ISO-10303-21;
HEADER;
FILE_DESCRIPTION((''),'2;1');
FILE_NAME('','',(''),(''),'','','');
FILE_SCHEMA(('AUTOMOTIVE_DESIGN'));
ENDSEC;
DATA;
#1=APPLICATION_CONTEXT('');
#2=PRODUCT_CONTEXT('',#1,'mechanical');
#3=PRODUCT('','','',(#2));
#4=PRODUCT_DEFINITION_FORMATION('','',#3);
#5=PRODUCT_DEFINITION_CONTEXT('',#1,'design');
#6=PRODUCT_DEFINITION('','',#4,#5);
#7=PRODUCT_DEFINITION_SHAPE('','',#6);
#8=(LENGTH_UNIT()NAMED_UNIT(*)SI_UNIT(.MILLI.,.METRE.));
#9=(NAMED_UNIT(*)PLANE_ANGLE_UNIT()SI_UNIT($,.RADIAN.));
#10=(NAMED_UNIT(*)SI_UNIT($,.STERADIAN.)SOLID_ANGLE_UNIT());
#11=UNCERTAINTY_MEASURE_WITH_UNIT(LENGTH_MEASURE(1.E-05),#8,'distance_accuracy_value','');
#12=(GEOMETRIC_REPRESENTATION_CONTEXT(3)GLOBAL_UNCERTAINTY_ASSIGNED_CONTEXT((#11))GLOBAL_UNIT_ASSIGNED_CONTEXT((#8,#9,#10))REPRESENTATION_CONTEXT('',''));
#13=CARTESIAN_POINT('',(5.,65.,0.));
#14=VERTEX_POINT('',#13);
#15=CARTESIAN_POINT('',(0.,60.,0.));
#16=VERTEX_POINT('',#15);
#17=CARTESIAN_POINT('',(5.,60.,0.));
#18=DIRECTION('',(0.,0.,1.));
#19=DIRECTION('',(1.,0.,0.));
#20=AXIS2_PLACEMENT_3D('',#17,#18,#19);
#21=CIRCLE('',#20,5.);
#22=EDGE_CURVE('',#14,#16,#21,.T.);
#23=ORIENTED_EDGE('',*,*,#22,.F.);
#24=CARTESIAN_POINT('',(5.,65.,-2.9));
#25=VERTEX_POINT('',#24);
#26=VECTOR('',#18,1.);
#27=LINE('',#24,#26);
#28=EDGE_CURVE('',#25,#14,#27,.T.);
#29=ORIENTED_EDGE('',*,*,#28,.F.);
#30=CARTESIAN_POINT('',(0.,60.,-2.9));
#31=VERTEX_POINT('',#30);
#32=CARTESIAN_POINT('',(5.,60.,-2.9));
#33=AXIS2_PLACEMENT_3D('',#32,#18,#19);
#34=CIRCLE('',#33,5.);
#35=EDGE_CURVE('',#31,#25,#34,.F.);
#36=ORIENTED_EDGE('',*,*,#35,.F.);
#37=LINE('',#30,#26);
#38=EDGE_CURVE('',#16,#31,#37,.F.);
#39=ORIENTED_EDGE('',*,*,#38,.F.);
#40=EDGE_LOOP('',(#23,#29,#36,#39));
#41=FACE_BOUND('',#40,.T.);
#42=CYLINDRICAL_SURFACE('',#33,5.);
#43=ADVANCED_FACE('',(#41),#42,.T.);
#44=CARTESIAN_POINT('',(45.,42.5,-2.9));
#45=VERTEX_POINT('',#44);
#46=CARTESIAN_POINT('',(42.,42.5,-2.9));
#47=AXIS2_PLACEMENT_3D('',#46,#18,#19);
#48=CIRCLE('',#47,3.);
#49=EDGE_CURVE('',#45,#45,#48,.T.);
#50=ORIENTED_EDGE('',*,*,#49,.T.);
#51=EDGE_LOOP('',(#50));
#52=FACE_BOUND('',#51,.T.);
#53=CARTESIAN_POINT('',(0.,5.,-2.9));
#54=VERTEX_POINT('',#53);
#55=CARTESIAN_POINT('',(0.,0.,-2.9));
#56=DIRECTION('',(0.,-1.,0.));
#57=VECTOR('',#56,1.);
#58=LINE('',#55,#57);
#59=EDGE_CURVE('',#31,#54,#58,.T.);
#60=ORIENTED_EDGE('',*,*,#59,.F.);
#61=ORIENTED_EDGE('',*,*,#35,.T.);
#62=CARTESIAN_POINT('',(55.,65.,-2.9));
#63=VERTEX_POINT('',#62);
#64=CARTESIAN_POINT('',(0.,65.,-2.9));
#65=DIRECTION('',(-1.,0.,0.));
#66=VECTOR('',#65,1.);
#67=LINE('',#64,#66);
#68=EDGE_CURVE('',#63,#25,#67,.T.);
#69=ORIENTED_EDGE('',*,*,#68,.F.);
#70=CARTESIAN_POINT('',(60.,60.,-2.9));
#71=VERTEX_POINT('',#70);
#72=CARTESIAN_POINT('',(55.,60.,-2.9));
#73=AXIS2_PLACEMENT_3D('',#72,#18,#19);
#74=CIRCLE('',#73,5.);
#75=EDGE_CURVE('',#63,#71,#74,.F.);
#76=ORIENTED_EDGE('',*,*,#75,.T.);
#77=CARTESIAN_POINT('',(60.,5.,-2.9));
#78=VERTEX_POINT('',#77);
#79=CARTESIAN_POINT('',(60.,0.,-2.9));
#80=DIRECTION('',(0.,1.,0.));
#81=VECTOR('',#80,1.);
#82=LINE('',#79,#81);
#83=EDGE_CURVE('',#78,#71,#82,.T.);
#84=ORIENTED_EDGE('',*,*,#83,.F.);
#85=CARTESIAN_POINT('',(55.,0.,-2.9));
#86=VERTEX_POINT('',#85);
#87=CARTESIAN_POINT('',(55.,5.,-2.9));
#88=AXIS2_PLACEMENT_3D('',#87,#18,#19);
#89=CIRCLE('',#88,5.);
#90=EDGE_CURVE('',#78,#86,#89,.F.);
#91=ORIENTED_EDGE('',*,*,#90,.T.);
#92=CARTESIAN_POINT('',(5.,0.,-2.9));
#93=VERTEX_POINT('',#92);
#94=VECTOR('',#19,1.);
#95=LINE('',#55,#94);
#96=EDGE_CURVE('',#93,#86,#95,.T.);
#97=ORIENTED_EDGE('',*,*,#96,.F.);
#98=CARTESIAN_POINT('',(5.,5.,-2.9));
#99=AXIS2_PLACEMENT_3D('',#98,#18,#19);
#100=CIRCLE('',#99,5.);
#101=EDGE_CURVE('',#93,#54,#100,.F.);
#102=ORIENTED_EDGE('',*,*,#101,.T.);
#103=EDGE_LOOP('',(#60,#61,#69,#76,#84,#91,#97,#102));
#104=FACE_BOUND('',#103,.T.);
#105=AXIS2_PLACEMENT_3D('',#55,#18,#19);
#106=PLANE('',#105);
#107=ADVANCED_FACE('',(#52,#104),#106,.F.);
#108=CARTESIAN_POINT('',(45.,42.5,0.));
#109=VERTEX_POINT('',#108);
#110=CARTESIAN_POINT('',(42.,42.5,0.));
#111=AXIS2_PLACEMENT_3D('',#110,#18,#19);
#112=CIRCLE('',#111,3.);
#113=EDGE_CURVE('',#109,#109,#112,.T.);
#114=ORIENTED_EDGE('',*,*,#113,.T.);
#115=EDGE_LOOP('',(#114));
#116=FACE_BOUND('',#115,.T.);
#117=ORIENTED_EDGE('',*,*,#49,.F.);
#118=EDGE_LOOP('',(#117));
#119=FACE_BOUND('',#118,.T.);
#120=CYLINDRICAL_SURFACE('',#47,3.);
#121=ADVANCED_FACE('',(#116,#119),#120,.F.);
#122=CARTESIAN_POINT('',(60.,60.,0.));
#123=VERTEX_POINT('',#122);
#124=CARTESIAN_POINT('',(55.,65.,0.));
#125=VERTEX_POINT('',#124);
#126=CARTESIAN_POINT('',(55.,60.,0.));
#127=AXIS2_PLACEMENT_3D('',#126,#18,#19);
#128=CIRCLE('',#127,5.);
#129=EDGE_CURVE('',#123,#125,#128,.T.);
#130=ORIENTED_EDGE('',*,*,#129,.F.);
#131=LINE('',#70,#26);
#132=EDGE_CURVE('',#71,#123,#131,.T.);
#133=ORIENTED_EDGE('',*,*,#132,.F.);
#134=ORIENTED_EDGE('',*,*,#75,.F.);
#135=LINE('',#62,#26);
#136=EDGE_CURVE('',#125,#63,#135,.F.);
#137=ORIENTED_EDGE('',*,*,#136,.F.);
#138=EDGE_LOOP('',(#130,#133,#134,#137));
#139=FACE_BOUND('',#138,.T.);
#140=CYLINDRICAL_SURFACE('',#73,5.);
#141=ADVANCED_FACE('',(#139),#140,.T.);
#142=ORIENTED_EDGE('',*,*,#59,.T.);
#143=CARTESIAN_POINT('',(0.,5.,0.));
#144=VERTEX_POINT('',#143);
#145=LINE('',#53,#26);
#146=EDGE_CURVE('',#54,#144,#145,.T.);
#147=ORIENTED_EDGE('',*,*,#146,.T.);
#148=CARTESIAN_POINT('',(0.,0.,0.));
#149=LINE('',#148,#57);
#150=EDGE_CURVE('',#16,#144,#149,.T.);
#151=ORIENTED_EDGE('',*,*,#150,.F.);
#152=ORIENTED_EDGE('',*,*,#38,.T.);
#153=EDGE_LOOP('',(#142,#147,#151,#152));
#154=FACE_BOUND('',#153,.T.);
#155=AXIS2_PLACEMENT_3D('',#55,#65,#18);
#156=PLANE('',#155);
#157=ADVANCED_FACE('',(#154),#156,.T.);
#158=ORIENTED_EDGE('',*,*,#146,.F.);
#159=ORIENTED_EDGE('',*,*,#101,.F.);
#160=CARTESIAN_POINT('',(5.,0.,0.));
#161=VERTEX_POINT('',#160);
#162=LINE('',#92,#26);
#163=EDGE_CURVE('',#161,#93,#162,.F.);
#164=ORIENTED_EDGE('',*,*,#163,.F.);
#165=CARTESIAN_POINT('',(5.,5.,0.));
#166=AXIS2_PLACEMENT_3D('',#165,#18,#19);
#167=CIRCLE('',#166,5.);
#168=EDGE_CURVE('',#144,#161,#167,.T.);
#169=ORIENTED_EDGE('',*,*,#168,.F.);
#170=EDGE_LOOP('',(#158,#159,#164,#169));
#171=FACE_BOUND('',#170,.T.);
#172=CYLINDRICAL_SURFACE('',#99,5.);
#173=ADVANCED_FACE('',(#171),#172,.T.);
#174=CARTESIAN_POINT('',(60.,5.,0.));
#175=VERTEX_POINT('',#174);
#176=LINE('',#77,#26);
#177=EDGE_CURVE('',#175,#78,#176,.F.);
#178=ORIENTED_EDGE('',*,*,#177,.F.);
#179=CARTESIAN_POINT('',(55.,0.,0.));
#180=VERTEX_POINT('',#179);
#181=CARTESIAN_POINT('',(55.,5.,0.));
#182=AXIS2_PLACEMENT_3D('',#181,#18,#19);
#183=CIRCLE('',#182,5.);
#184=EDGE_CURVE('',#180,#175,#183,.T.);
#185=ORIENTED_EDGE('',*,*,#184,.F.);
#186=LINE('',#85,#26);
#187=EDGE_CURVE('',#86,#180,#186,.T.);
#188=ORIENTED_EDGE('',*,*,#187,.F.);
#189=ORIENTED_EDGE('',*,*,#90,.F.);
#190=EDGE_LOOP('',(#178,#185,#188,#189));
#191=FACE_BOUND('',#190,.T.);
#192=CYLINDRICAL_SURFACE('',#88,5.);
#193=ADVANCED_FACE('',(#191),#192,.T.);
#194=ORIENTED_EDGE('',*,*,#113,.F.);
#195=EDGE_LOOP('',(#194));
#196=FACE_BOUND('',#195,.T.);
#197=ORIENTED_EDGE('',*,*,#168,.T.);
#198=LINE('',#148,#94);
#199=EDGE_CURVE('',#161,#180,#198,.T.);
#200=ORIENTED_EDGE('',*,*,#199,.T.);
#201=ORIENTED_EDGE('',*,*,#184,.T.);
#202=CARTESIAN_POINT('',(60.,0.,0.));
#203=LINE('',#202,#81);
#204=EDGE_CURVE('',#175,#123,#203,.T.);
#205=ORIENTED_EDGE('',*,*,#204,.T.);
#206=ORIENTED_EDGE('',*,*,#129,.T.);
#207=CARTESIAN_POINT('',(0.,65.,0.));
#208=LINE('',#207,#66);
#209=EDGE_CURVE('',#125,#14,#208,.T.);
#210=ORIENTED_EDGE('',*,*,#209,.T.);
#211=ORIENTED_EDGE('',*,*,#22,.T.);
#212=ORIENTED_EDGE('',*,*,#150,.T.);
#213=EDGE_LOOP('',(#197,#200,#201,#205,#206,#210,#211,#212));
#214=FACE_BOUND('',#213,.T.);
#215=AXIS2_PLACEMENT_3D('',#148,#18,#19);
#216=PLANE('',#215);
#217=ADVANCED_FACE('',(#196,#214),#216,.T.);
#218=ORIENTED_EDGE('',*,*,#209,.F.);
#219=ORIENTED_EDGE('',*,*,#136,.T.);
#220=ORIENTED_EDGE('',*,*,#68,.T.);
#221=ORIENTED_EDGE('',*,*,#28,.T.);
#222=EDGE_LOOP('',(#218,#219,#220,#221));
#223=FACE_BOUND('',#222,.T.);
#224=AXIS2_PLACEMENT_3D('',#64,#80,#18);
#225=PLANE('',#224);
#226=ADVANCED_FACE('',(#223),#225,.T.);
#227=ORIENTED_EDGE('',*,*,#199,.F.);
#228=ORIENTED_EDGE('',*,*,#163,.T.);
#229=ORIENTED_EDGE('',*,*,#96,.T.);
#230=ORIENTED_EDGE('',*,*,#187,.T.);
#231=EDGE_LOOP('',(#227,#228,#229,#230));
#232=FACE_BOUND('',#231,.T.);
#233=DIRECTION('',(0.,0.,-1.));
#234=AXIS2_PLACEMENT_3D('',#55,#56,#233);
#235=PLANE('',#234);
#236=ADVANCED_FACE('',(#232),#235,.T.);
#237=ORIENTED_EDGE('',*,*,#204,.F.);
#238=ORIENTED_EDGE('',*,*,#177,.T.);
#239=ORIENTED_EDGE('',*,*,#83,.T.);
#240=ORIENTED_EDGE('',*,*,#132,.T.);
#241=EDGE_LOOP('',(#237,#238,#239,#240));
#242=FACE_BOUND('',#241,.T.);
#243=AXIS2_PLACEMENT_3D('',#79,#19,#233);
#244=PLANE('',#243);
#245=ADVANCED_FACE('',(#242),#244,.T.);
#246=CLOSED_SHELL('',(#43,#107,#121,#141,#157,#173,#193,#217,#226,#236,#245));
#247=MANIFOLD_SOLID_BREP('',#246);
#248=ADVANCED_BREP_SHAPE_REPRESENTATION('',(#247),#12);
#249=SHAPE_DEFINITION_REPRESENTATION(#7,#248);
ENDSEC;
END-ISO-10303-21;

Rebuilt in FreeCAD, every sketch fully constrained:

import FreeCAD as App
import Part
import Sketcher

V = App.Vector
Q = App.Units.Quantity


def edges_at(feature, points):
    """Names of the edges that pass closest to the given points."""
    edges = feature.Shape.Edges
    near = lambda p: min(range(len(edges)), key=lambda i: edges[i].distToShape(Part.Vertex(*p))[0])
    return sorted({f"Edge{near(p) + 1}" for p in points})


def add_polygon(sketch, points):
    """Adds a closed chain of lines whose ends are joined by coincident constraints."""
    first, n = sketch.GeometryCount, len(points)
    for a, b in zip(points, points[1:] + points[:1]):
        sketch.addGeometry(Part.LineSegment(App.Vector(*a, 0), App.Vector(*b, 0)), False)
    for i in range(n):
        sketch.addConstraint(Sketcher.Constraint("Coincident", first + i, 2, first + (i + 1) % n, 1))

doc = App.newDocument("Part")
body = doc.addObject("PartDesign::Body", "Body")

sketch1 = body.newObject("Sketcher::SketchObject", "Sketch")
sketch1.AttachmentSupport = (doc.getObject("XY_Plane"), [""])
sketch1.MapMode = "FlatFace"
add_polygon(sketch1, [(0, 65), (0, 0), (60, 0), (60, 65)])
sketch1.addGeometry(Part.Circle(V(42, 42.5, 0), V(0, 0, 1), 3), False)
sketch1.addConstraint([
    Sketcher.Constraint("Vertical", 0),
    Sketcher.Constraint("Horizontal", 1),
    Sketcher.Constraint("Vertical", 2),
    Sketcher.Constraint("Horizontal", 3),
    Sketcher.Constraint("Coincident", 0, 2, -1, 1),
    Sketcher.Constraint("Diameter", 4, Q("6 mm")),
    Sketcher.Constraint("DistanceX", 1, 1, 1, 2, Q("60 mm")),
    Sketcher.Constraint("DistanceY", 0, 2, 0, 1, Q("65 mm")),
    Sketcher.Constraint("DistanceX", -1, 1, 4, 3, Q("42 mm")),
    Sketcher.Constraint("DistanceY", -1, 1, 4, 3, Q("42.5 mm")),
])
pad1 = body.newObject("PartDesign::Pad", "Pad")
pad1.Profile = sketch1
pad1.Length = 2.9
pad1.Reversed = True
doc.recompute()

fillet = body.newObject("PartDesign::Fillet", "Fillet")
fillet.Base = (pad1, edges_at(pad1, [(0, 65, -1.45)]))
fillet.Radius = 5
doc.recompute()

fillet2 = body.newObject("PartDesign::Fillet", "Fillet001")
fillet2.Base = (fillet, edges_at(fillet, [(60, 65, -1.45)]))
fillet2.Radius = 5
doc.recompute()

fillet3 = body.newObject("PartDesign::Fillet", "Fillet002")
fillet3.Base = (fillet2, edges_at(fillet2, [(60, 0, -1.45)]))
fillet3.Radius = 5
doc.recompute()

fillet4 = body.newObject("PartDesign::Fillet", "Fillet003")
fillet4.Base = (fillet3, edges_at(fillet3, [(0, 0, -1.45)]))
fillet4.Radius = 5

doc.recompute()
